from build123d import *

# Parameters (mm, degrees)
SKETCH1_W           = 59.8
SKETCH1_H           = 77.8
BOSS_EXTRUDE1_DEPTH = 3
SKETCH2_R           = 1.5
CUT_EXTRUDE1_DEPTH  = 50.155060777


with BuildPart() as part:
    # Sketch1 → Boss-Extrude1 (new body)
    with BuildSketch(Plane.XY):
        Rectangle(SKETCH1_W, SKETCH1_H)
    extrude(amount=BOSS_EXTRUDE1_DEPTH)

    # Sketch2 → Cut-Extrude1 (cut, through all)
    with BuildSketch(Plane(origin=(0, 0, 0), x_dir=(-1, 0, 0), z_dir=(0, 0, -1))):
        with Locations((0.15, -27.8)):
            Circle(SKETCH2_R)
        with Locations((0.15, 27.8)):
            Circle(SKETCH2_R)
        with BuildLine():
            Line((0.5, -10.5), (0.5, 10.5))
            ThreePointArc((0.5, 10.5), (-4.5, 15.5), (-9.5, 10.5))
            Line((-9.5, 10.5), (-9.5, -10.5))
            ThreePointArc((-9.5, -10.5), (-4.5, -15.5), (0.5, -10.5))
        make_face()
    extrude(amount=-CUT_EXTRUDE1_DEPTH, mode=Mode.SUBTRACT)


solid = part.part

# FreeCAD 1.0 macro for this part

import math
import FreeCAD as App
import Part
import Sketcher

V = App.Vector

doc = App.newDocument("Part")
body = doc.addObject("PartDesign::Body", "Body")

# Sketch on XY plane
sketch1 = body.newObject("Sketcher::SketchObject", "Sketch")
sketch1.AttachmentSupport = (doc.getObject("XY_Plane"), [""])
sketch1.MapMode = "FlatFace"
sketch1.addGeometry(Part.LineSegment(V(-30, 39, 0), V(-30, -39, 0)), False)
sketch1.addGeometry(Part.LineSegment(V(-30, -39, 0), V(30, -39, 0)), False)
sketch1.addGeometry(Part.LineSegment(V(30, -39, 0), V(30, 39, 0)), False)
sketch1.addGeometry(Part.LineSegment(V(30, 39, 0), V(-30, 39, 0)), False)
sketch1.addConstraint(Sketcher.Constraint("Coincident", 0, 2, 1, 1))
sketch1.addConstraint(Sketcher.Constraint("Coincident", 1, 2, 2, 1))
sketch1.addConstraint(Sketcher.Constraint("Coincident", 2, 2, 3, 1))
sketch1.addConstraint(Sketcher.Constraint("Coincident", 3, 2, 0, 1))
sketch1.addConstraint(Sketcher.Constraint("Vertical", 0))
sketch1.addConstraint(Sketcher.Constraint("Horizontal", 1))
sketch1.addConstraint(Sketcher.Constraint("Vertical", 2))
sketch1.addConstraint(Sketcher.Constraint("Horizontal", 3))
sketch1.addConstraint(Sketcher.Constraint("Symmetric", 0, 2, 2, 2, -1, 1))
sketch1.addConstraint(Sketcher.Constraint("DistanceX", 1, 1, 1, 2, 59.8))
sketch1.addConstraint(Sketcher.Constraint("DistanceY", 0, 2, 0, 1, 77.8))
pad1 = body.newObject("PartDesign::Pad", "Pad")
pad1.Profile = sketch1
pad1.Length = 3

# Sketch on XY plane
sketch2 = body.newObject("Sketcher::SketchObject", "Sketch001")
sketch2.AttachmentSupport = (doc.getObject("XY_Plane"), [""])
sketch2.MapMode = "FlatFace"
sketch2.addGeometry(Part.Circle(V(-0.1, -27.8, 0), V(0, 0, 1), 1.5), False)
sketch2.addGeometry(Part.Circle(V(-0.1, 27.8, 0), V(0, 0, 1), 1.5), False)
sketch2.addGeometry(Part.LineSegment(V(-0.5, -10.5, 0), V(-0.5, 10.5, 0)), False)
sketch2.addGeometry(Part.ArcOfCircle(Part.Circle(V(4.5, 10.5, 0), V(0, 0, 1), 5), math.radians(0), math.radians(180)), False)
sketch2.addGeometry(Part.LineSegment(V(9.5, 10.5, 0), V(9.5, -10.5, 0)), False)
sketch2.addGeometry(Part.ArcOfCircle(Part.Circle(V(4.5, -10.5, 0), V(0, 0, 1), 5), math.radians(180), math.radians(360)), False)
sketch2.addConstraint(Sketcher.Constraint("Tangent", 2, 2, 3, 2))
sketch2.addConstraint(Sketcher.Constraint("Tangent", 3, 1, 4, 1))
sketch2.addConstraint(Sketcher.Constraint("Tangent", 4, 2, 5, 2))
sketch2.addConstraint(Sketcher.Constraint("Tangent", 5, 1, 2, 1))
sketch2.addConstraint(Sketcher.Constraint("Vertical", 2))
sketch2.addConstraint(Sketcher.Constraint("Vertical", 4))
sketch2.addConstraint(Sketcher.Constraint("Equal", 0, 1))
sketch2.addConstraint(Sketcher.Constraint("Symmetric", 0, 3, 1, 3, -1))
sketch2.addConstraint(Sketcher.Constraint("Diameter", 0, 3.0))
sketch2.addConstraint(Sketcher.Constraint("Radius", 3, 5.0))
sketch2.addConstraint(Sketcher.Constraint("DistanceY", 2, 1, 2, 2, 21.0))
sketch2.addConstraint(Sketcher.Constraint("DistanceY", 0, 3, -1, 1, 27.8))
sketch2.addConstraint(Sketcher.Constraint("DistanceX", -1, 1, 3, 3, 4.5))
sketch2.addConstraint(Sketcher.Constraint("DistanceY", -1, 1, 3, 3, 10.5))
sketch2.addConstraint(Sketcher.Constraint("DistanceX", 0, 3, -1, 1, 0.15))
pocket1 = body.newObject("PartDesign::Pocket", "Pocket")
pocket1.Profile = sketch2
pocket1.Type = "ThroughAll"
pocket1.Reversed = True

doc.recompute()
